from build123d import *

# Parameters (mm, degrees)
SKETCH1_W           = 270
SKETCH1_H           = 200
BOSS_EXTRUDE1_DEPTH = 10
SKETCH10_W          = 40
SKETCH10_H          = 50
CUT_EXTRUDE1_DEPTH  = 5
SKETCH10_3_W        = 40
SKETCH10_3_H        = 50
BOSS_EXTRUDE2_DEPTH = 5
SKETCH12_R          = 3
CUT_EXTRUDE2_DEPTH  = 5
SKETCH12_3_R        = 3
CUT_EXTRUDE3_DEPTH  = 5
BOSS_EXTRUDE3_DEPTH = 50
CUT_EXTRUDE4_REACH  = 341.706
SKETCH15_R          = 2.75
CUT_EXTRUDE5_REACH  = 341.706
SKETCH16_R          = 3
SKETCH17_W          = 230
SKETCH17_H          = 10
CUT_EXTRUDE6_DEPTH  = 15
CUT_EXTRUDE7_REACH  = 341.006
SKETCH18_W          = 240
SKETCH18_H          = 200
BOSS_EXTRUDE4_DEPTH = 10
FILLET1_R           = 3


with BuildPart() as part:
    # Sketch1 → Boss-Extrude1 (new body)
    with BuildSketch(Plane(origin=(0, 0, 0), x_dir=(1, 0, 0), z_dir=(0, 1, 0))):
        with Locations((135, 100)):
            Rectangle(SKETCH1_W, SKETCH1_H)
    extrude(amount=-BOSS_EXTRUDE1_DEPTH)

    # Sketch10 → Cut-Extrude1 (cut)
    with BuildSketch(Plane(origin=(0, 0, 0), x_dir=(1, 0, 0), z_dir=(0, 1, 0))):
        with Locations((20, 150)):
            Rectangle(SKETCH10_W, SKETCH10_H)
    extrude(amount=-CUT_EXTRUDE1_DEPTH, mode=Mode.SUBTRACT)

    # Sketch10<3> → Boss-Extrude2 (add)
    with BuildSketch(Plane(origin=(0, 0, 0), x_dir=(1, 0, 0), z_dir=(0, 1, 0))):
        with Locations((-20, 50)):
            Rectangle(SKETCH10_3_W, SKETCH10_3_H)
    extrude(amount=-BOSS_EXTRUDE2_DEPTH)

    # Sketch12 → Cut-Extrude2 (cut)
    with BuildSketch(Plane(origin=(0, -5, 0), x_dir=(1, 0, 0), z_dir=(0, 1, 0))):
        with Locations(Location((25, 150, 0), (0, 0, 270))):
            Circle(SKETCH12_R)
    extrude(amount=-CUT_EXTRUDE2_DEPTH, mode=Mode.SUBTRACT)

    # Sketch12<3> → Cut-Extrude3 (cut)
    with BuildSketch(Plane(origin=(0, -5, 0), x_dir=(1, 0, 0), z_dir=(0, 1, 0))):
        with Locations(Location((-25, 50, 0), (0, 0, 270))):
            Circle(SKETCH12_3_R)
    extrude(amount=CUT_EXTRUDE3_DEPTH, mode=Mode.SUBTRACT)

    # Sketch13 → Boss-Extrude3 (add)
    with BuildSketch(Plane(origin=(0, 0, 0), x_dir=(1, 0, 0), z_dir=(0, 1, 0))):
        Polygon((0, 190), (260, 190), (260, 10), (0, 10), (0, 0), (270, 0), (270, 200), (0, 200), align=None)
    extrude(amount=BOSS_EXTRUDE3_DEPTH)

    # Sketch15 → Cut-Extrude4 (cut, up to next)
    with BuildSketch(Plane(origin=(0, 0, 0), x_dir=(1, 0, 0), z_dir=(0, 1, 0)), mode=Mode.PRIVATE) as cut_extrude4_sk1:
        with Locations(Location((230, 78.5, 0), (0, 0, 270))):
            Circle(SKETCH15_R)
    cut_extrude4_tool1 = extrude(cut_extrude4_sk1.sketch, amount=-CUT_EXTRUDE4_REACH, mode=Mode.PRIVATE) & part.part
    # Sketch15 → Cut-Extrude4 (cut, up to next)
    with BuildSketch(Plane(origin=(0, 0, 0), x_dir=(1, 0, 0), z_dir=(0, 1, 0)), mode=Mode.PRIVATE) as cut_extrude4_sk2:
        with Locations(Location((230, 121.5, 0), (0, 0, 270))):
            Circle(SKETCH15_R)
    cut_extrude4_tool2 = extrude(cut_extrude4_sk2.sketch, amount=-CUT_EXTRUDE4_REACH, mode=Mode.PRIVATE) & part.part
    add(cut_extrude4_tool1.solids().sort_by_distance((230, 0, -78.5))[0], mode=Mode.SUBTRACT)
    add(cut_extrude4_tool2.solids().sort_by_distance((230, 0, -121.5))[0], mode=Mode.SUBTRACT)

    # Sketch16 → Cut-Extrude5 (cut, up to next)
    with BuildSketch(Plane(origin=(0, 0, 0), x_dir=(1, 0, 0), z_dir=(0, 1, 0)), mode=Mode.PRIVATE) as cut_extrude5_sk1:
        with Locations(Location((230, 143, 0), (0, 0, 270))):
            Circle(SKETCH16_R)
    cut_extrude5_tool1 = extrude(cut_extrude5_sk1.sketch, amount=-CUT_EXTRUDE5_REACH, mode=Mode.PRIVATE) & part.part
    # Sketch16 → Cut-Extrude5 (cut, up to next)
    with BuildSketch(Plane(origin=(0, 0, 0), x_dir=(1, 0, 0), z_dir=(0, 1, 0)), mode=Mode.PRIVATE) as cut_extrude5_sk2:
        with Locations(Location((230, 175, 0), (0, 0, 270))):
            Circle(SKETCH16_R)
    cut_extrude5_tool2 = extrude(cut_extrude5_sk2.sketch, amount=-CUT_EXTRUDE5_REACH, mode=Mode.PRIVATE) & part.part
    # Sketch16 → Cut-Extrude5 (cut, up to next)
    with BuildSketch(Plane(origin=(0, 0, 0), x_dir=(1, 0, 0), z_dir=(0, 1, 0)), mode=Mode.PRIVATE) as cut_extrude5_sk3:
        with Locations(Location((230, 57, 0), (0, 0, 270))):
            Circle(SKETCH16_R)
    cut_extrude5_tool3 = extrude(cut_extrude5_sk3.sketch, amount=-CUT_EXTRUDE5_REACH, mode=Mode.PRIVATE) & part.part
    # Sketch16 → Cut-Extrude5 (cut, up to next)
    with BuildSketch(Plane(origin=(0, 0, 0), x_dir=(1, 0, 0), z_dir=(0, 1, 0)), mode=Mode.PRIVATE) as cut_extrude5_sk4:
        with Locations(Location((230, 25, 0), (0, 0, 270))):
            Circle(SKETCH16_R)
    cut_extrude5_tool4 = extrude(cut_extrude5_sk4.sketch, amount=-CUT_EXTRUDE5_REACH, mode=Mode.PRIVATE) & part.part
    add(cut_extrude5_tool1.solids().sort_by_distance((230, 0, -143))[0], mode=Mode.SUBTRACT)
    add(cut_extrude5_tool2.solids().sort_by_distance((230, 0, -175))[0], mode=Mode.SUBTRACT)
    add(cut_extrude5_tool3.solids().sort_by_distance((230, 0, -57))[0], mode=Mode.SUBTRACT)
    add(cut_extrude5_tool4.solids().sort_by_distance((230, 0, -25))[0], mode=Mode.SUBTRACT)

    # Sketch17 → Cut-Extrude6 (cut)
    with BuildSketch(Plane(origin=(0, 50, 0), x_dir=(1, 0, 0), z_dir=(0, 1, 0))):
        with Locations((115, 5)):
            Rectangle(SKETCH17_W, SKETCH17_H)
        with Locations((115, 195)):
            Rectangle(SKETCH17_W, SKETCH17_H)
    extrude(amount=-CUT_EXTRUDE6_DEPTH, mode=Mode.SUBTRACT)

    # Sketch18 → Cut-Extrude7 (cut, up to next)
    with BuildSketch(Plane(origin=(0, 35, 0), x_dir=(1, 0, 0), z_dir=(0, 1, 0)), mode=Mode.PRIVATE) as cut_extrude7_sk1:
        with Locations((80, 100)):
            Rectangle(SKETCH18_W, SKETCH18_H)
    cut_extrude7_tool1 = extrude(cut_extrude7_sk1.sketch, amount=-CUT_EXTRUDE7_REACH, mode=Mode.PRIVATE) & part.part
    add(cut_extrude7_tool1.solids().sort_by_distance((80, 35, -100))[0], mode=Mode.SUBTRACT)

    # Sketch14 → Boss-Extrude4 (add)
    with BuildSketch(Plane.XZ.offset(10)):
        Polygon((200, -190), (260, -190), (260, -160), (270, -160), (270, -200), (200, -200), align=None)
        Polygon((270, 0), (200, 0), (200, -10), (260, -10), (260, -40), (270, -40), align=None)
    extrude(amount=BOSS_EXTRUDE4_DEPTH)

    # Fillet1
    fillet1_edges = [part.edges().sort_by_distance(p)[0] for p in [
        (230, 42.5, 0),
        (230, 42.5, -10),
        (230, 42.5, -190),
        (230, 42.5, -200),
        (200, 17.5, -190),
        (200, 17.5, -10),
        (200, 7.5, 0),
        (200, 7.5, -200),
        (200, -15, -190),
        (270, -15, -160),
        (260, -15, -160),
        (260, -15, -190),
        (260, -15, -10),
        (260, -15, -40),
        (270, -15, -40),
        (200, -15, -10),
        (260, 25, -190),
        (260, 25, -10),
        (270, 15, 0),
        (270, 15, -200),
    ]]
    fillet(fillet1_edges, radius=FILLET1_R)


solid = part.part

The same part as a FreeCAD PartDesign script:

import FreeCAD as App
import Part
import Sketcher

V = App.Vector


def edges_at(feature, points):
    """Names of the edges that pass closest to the given points."""
    edges = feature.Shape.Edges
    near = lambda p: min(range(len(edges)), key=lambda i: edges[i].distToShape(Part.Vertex(*p))[0])
    return sorted({f"Edge{near(p) + 1}" for p in points})

doc = App.newDocument("Part")
body = doc.addObject("PartDesign::Body", "Body")

sketch1 = doc.addObject("Sketcher::SketchObject", "Sketch")
body.addObject(sketch1)
sketch1.AttachmentSupport = (doc.XZ_Plane, [""])
sketch1.MapMode = "FlatFace"
sketch1.addGeometry([
    Part.LineSegment(V(0, -200, 0), V(0, 0, 0)),
    Part.LineSegment(V(0, 0, 0), V(270, 0, 0)),
    Part.LineSegment(V(270, 0, 0), V(270, -200, 0)),
    Part.LineSegment(V(270, -200, 0), V(0, -200, 0)),
], False)
sketch1.addConstraint([
    Sketcher.Constraint("Coincident", 0, 2, 1, 1),
    Sketcher.Constraint("Coincident", 1, 2, 2, 1),
    Sketcher.Constraint("Coincident", 2, 2, 3, 1),
    Sketcher.Constraint("Coincident", 3, 2, 0, 1),
    Sketcher.Constraint("Vertical", 0),
    Sketcher.Constraint("Horizontal", 1),
    Sketcher.Constraint("Vertical", 2),
    Sketcher.Constraint("Horizontal", 3),
    Sketcher.Constraint("Coincident", 0, 2, -1, 1),
    Sketcher.Constraint("DistanceX", 1, 1, 1, 2, 270.0),
    Sketcher.Constraint("DistanceY", 0, 1, 0, 2, 200.0),
])
pad1 = doc.addObject("PartDesign::Pad", "Pad")
body.addObject(pad1)
pad1.Profile = sketch1
pad1.Length = 10

sketch2 = doc.addObject("Sketcher::SketchObject", "Sketch001")
body.addObject(sketch2)
sketch2.AttachmentSupport = (doc.XZ_Plane, [""])
sketch2.MapMode = "FlatFace"
sketch2.addGeometry([
    Part.LineSegment(V(0, -175, 0), V(0, -125, 0)),
    Part.LineSegment(V(0, -125, 0), V(40, -125, 0)),
    Part.LineSegment(V(40, -125, 0), V(40, -175, 0)),
    Part.LineSegment(V(40, -175, 0), V(0, -175, 0)),
], False)
sketch2.addConstraint([
    Sketcher.Constraint("Coincident", 0, 2, 1, 1),
    Sketcher.Constraint("Coincident", 1, 2, 2, 1),
    Sketcher.Constraint("Coincident", 2, 2, 3, 1),
    Sketcher.Constraint("Coincident", 3, 2, 0, 1),
    Sketcher.Constraint("Vertical", 0),
    Sketcher.Constraint("Horizontal", 1),
    Sketcher.Constraint("Vertical", 2),
    Sketcher.Constraint("Horizontal", 3),
    Sketcher.Constraint("PointOnObject", 0, 2, -2),
    Sketcher.Constraint("DistanceX", 1, 1, 1, 2, 40.0),
    Sketcher.Constraint("DistanceY", 0, 1, 0, 2, 50.0),
    Sketcher.Constraint("DistanceY", 0, 2, -1, 1, 125.0),
])
pocket1 = doc.addObject("PartDesign::Pocket", "Pocket")
body.addObject(pocket1)
pocket1.Profile = sketch2
pocket1.Length = 5
pocket1.Reversed = True

sketch3 = doc.addObject("Sketcher::SketchObject", "Sketch002")
body.addObject(sketch3)
sketch3.AttachmentSupport = (doc.XZ_Plane, [""])
sketch3.MapMode = "FlatFace"
sketch3.addGeometry([
    Part.LineSegment(V(-40, -75, 0), V(-40, -25, 0)),
    Part.LineSegment(V(-40, -25, 0), V(0, -25, 0)),
    Part.LineSegment(V(0, -25, 0), V(0, -75, 0)),
    Part.LineSegment(V(0, -75, 0), V(-40, -75, 0)),
], False)
sketch3.addConstraint([
    Sketcher.Constraint("Coincident", 0, 2, 1, 1),
    Sketcher.Constraint("Coincident", 1, 2, 2, 1),
    Sketcher.Constraint("Coincident", 2, 2, 3, 1),
    Sketcher.Constraint("Coincident", 3, 2, 0, 1),
    Sketcher.Constraint("Vertical", 0),
    Sketcher.Constraint("Horizontal", 1),
    Sketcher.Constraint("Vertical", 2),
    Sketcher.Constraint("Horizontal", 3),
    Sketcher.Constraint("PointOnObject", 1, 2, -2),
    Sketcher.Constraint("DistanceX", 1, 1, 1, 2, 40.0),
    Sketcher.Constraint("DistanceY", 0, 1, 0, 2, 50.0),
    Sketcher.Constraint("DistanceY", 0, 2, -1, 1, 25.0),
])
pad2 = doc.addObject("PartDesign::Pad", "Pad001")
body.addObject(pad2)
pad2.Profile = sketch3
pad2.Length = 5

sketch4 = doc.addObject("Sketcher::SketchObject", "Sketch003")
body.addObject(sketch4)
sketch4.AttachmentSupport = (doc.XZ_Plane, [""])
sketch4.MapMode = "FlatFace"
sketch4.AttachmentOffset = App.Placement(V(0, 0, 5), App.Rotation())
sketch4.addGeometry(Part.Circle(V(25, -150, 0), V(0, 0, 1), 3), False)
sketch4.addConstraint([
    Sketcher.Constraint("Diameter", 0, 6.0),
    Sketcher.Constraint("DistanceX", -1, 1, 0, 3, 25.0),
    Sketcher.Constraint("DistanceY", 0, 3, -1, 1, 150.0),
])
pocket2 = doc.addObject("PartDesign::Pocket", "Pocket001")
body.addObject(pocket2)
pocket2.Profile = sketch4
pocket2.Length = 5
pocket2.Reversed = True

sketch5 = doc.addObject("Sketcher::SketchObject", "Sketch004")
body.addObject(sketch5)
sketch5.AttachmentSupport = (doc.XZ_Plane, [""])
sketch5.MapMode = "FlatFace"
sketch5.AttachmentOffset = App.Placement(V(0, 0, 5), App.Rotation())
sketch5.addGeometry(Part.Circle(V(-25, -50, 0), V(0, 0, 1), 3), False)
sketch5.addConstraint([
    Sketcher.Constraint("Diameter", 0, 6.0),
    Sketcher.Constraint("DistanceX", 0, 3, -1, 1, 25.0),
    Sketcher.Constraint("DistanceY", 0, 3, -1, 1, 50.0),
])
pocket3 = doc.addObject("PartDesign::Pocket", "Pocket002")
body.addObject(pocket3)
pocket3.Profile = sketch5
pocket3.Length = 5

sketch6 = doc.addObject("Sketcher::SketchObject", "Sketch005")
body.addObject(sketch6)
sketch6.AttachmentSupport = (doc.XZ_Plane, [""])
sketch6.MapMode = "FlatFace"
sketch6.addGeometry([
    Part.LineSegment(V(0, -190, 0), V(260, -190, 0)),
    Part.LineSegment(V(260, -190, 0), V(260, -10, 0)),
    Part.LineSegment(V(260, -10, 0), V(0, -10, 0)),
    Part.LineSegment(V(0, -10, 0), V(0, 0, 0)),
    Part.LineSegment(V(0, 0, 0), V(270, 0, 0)),
    Part.LineSegment(V(270, 0, 0), V(270, -200, 0)),
    Part.LineSegment(V(270, -200, 0), V(0, -200, 0)),
    Part.LineSegment(V(0, -200, 0), V(0, -190, 0)),
], False)
sketch6.addConstraint([
    Sketcher.Constraint("Coincident", 0, 2, 1, 1),
    Sketcher.Constraint("Coincident", 1, 2, 2, 1),
    Sketcher.Constraint("Coincident", 2, 2, 3, 1),
    Sketcher.Constraint("Coincident", 3, 2, 4, 1),
    Sketcher.Constraint("Coincident", 4, 2, 5, 1),
    Sketcher.Constraint("Coincident", 5, 2, 6, 1),
    Sketcher.Constraint("Coincident", 6, 2, 7, 1),
    Sketcher.Constraint("Coincident", 7, 2, 0, 1),
    Sketcher.Constraint("Horizontal", 0),
    Sketcher.Constraint("Vertical", 1),
    Sketcher.Constraint("Horizontal", 2),
    Sketcher.Constraint("Vertical", 3),
    Sketcher.Constraint("Horizontal", 4),
    Sketcher.Constraint("Vertical", 5),
    Sketcher.Constraint("Horizontal", 6),
    Sketcher.Constraint("Vertical", 7),
    Sketcher.Constraint("Coincident", 3, 2, -1, 1),
    Sketcher.Constraint("PointOnObject", 6, 2, -2),
    Sketcher.Constraint("Equal", 3, 7),
    Sketcher.Constraint("DistanceX", 0, 1, 0, 2, 260.0),
    Sketcher.Constraint("DistanceX", 4, 1, 4, 2, 270.0),
    Sketcher.Constraint("DistanceY", 1, 1, 1, 2, 180.0),
    Sketcher.Constraint("DistanceY", 3, 1, 3, 2, 10.0),
])
pad3 = doc.addObject("PartDesign::Pad", "Pad002")
body.addObject(pad3)
pad3.Profile = sketch6
pad3.Length = 50
pad3.Reversed = True

sketch7 = doc.addObject("Sketcher::SketchObject", "Sketch006")
body.addObject(sketch7)
sketch7.AttachmentSupport = (doc.XZ_Plane, [""])
sketch7.MapMode = "FlatFace"
sketch7.addGeometry(Part.Circle(V(230, -78.5, 0), V(0, 0, 1), 2.75), False)
sketch7.addConstraint([
    Sketcher.Constraint("Diameter", 0, 5.5),
    Sketcher.Constraint("DistanceX", -1, 1, 0, 3, 230.0),
    Sketcher.Constraint("DistanceY", 0, 3, -1, 1, 78.5),
])
pocket4 = doc.addObject("PartDesign::Pocket", "Pocket003")
body.addObject(pocket4)
pocket4.Profile = sketch7
pocket4.Type = "UpToFirst"
pocket4.Reversed = True

sketch8 = doc.addObject("Sketcher::SketchObject", "Sketch007")
body.addObject(sketch8)
sketch8.AttachmentSupport = (doc.XZ_Plane, [""])
sketch8.MapMode = "FlatFace"
sketch8.addGeometry(Part.Circle(V(230, -121.5, 0), V(0, 0, 1), 2.75), False)
sketch8.addConstraint([
    Sketcher.Constraint("Diameter", 0, 5.5),
    Sketcher.Constraint("DistanceX", -1, 1, 0, 3, 230.0),
    Sketcher.Constraint("DistanceY", 0, 3, -1, 1, 121.5),
])
pocket5 = doc.addObject("PartDesign::Pocket", "Pocket004")
body.addObject(pocket5)
pocket5.Profile = sketch8
pocket5.Type = "UpToFirst"
pocket5.Reversed = True

sketch9 = doc.addObject("Sketcher::SketchObject", "Sketch008")
body.addObject(sketch9)
sketch9.AttachmentSupport = (doc.XZ_Plane, [""])
sketch9.MapMode = "FlatFace"
sketch9.addGeometry(Part.Circle(V(230, -143, 0), V(0, 0, 1), 3), False)
sketch9.addConstraint([
    Sketcher.Constraint("Diameter", 0, 6.0),
    Sketcher.Constraint("DistanceX", -1, 1, 0, 3, 230.0),
    Sketcher.Constraint("DistanceY", 0, 3, -1, 1, 143.0),
])
pocket6 = doc.addObject("PartDesign::Pocket", "Pocket005")
body.addObject(pocket6)
pocket6.Profile = sketch9
pocket6.Type = "UpToFirst"
pocket6.Reversed = True

sketch10 = doc.addObject("Sketcher::SketchObject", "Sketch009")
body.addObject(sketch10)
sketch10.AttachmentSupport = (doc.XZ_Plane, [""])
sketch10.MapMode = "FlatFace"
sketch10.addGeometry(Part.Circle(V(230, -175, 0), V(0, 0, 1), 3), False)
sketch10.addConstraint([
    Sketcher.Constraint("Diameter", 0, 6.0),
    Sketcher.Constraint("DistanceX", -1, 1, 0, 3, 230.0),
    Sketcher.Constraint("DistanceY", 0, 3, -1, 1, 175.0),
])
pocket7 = doc.addObject("PartDesign::Pocket", "Pocket006")
body.addObject(pocket7)
pocket7.Profile = sketch10
pocket7.Type = "UpToFirst"
pocket7.Reversed = True

sketch11 = doc.addObject("Sketcher::SketchObject", "Sketch010")
body.addObject(sketch11)
sketch11.AttachmentSupport = (doc.XZ_Plane, [""])
sketch11.MapMode = "FlatFace"
sketch11.addGeometry(Part.Circle(V(230, -57, 0), V(0, 0, 1), 3), False)
sketch11.addConstraint([
    Sketcher.Constraint("Diameter", 0, 6.0),
    Sketcher.Constraint("DistanceX", -1, 1, 0, 3, 230.0),
    Sketcher.Constraint("DistanceY", 0, 3, -1, 1, 57.0),
])
pocket8 = doc.addObject("PartDesign::Pocket", "Pocket007")
body.addObject(pocket8)
pocket8.Profile = sketch11
pocket8.Type = "UpToFirst"
pocket8.Reversed = True

sketch12 = doc.addObject("Sketcher::SketchObject", "Sketch011")
body.addObject(sketch12)
sketch12.AttachmentSupport = (doc.XZ_Plane, [""])
sketch12.MapMode = "FlatFace"
sketch12.addGeometry(Part.Circle(V(230, -25, 0), V(0, 0, 1), 3), False)
sketch12.addConstraint([
    Sketcher.Constraint("Diameter", 0, 6.0),
    Sketcher.Constraint("DistanceX", -1, 1, 0, 3, 230.0),
    Sketcher.Constraint("DistanceY", 0, 3, -1, 1, 25.0),
])
pocket9 = doc.addObject("PartDesign::Pocket", "Pocket008")
body.addObject(pocket9)
pocket9.Profile = sketch12
pocket9.Type = "UpToFirst"
pocket9.Reversed = True

sketch13 = doc.addObject("Sketcher::SketchObject", "Sketch012")
body.addObject(sketch13)
sketch13.AttachmentSupport = (doc.XZ_Plane, [""])
sketch13.MapMode = "FlatFace"
sketch13.AttachmentOffset = App.Placement(V(0, 0, -50), App.Rotation())
sketch13.addGeometry([
    Part.LineSegment(V(0, -10, 0), V(0, 0, 0)),
    Part.LineSegment(V(0, 0, 0), V(230, 0, 0)),
    Part.LineSegment(V(230, 0, 0), V(230, -10, 0)),
    Part.LineSegment(V(230, -10, 0), V(0, -10, 0)),
    Part.LineSegment(V(0, -200, 0), V(0, -190, 0)),
    Part.LineSegment(V(0, -190, 0), V(230, -190, 0)),
    Part.LineSegment(V(230, -190, 0), V(230, -200, 0)),
    Part.LineSegment(V(230, -200, 0), V(0, -200, 0)),
], False)
sketch13.addConstraint([
    Sketcher.Constraint("Coincident", 0, 2, 1, 1),
    Sketcher.Constraint("Coincident", 1, 2, 2, 1),
    Sketcher.Constraint("Coincident", 2, 2, 3, 1),
    Sketcher.Constraint("Coincident", 3, 2, 0, 1),
    Sketcher.Constraint("Coincident", 4, 2, 5, 1),
    Sketcher.Constraint("Coincident", 5, 2, 6, 1),
    Sketcher.Constraint("Coincident", 6, 2, 7, 1),
    Sketcher.Constraint("Coincident", 7, 2, 4, 1),
    Sketcher.Constraint("Vertical", 0),
    Sketcher.Constraint("Horizontal", 1),
    Sketcher.Constraint("Vertical", 2),
    Sketcher.Constraint("Horizontal", 3),
    Sketcher.Constraint("Vertical", 4),
    Sketcher.Constraint("Horizontal", 5),
    Sketcher.Constraint("Vertical", 6),
    Sketcher.Constraint("Horizontal", 7),
    Sketcher.Constraint("Coincident", 0, 2, -1, 1),
    Sketcher.Constraint("PointOnObject", 4, 2, -2),
    Sketcher.Constraint("Vertical", 2, 2, 5, 2),
    Sketcher.Constraint("Equal", 2, 4),
    Sketcher.Constraint("DistanceX", 1, 1, 1, 2, 230.0),
    Sketcher.Constraint("DistanceY", 0, 1, 0, 2, 10.0),
    Sketcher.Constraint("DistanceY", 4, 2, -1, 1, 190.0),
])
pocket10 = doc.addObject("PartDesign::Pocket", "Pocket009")
body.addObject(pocket10)
pocket10.Profile = sketch13
pocket10.Length = 15
pocket10.Reversed = True

sketch14 = doc.addObject("Sketcher::SketchObject", "Sketch013")
body.addObject(sketch14)
sketch14.AttachmentSupport = (doc.XZ_Plane, [""])
sketch14.MapMode = "FlatFace"
sketch14.AttachmentOffset = App.Placement(V(0, 0, -35), App.Rotation())
sketch14.addGeometry([
    Part.LineSegment(V(-40, -200, 0), V(-40, 0, 0)),
    Part.LineSegment(V(-40, 0, 0), V(200, 0, 0)),
    Part.LineSegment(V(200, 0, 0), V(200, -200, 0)),
    Part.LineSegment(V(200, -200, 0), V(-40, -200, 0)),
], False)
sketch14.addConstraint([
    Sketcher.Constraint("Coincident", 0, 2, 1, 1),
    Sketcher.Constraint("Coincident", 1, 2, 2, 1),
    Sketcher.Constraint("Coincident", 2, 2, 3, 1),
    Sketcher.Constraint("Coincident", 3, 2, 0, 1),
    Sketcher.Constraint("Vertical", 0),
    Sketcher.Constraint("Horizontal", 1),
    Sketcher.Constraint("Vertical", 2),
    Sketcher.Constraint("Horizontal", 3),
    Sketcher.Constraint("PointOnObject", 0, 2, -1),
    Sketcher.Constraint("DistanceX", 1, 1, 1, 2, 240.0),
    Sketcher.Constraint("DistanceY", 0, 1, 0, 2, 200.0),
    Sketcher.Constraint("DistanceX", 0, 2, -1, 1, 40.0),
])
pocket11 = doc.addObject("PartDesign::Pocket", "Pocket010")
body.addObject(pocket11)
pocket11.Profile = sketch14
pocket11.Length = 45
pocket11.Reversed = True

sketch15 = doc.addObject("Sketcher::SketchObject", "Sketch014")
body.addObject(sketch15)
sketch15.AttachmentSupport = (doc.XZ_Plane, [""])
sketch15.MapMode = "FlatFace"
sketch15.AttachmentOffset = App.Placement(V(0, 0, 10), App.Rotation())
sketch15.addGeometry([
    Part.LineSegment(V(260, -190, 0), V(200, -190, 0)),
    Part.LineSegment(V(200, -190, 0), V(200, -200, 0)),
    Part.LineSegment(V(200, -200, 0), V(270, -200, 0)),
    Part.LineSegment(V(270, -200, 0), V(270, -160, 0)),
    Part.LineSegment(V(270, -160, 0), V(260, -160, 0)),
    Part.LineSegment(V(260, -160, 0), V(260, -190, 0)),
    Part.LineSegment(V(270, 0, 0), V(200, 0, 0)),
    Part.LineSegment(V(200, 0, 0), V(200, -10, 0)),
    Part.LineSegment(V(200, -10, 0), V(260, -10, 0)),
    Part.LineSegment(V(260, -10, 0), V(260, -40, 0)),
    Part.LineSegment(V(260, -40, 0), V(270, -40, 0)),
    Part.LineSegment(V(270, -40, 0), V(270, 0, 0)),
], False)
sketch15.addConstraint([
    Sketcher.Constraint("Coincident", 0, 2, 1, 1),
    Sketcher.Constraint("Coincident", 1, 2, 2, 1),
    Sketcher.Constraint("Coincident", 2, 2, 3, 1),
    Sketcher.Constraint("Coincident", 3, 2, 4, 1),
    Sketcher.Constraint("Coincident", 4, 2, 5, 1),
    Sketcher.Constraint("Coincident", 5, 2, 0, 1),
    Sketcher.Constraint("Coincident", 6, 2, 7, 1),
    Sketcher.Constraint("Coincident", 7, 2, 8, 1),
    Sketcher.Constraint("Coincident", 8, 2, 9, 1),
    Sketcher.Constraint("Coincident", 9, 2, 10, 1),
    Sketcher.Constraint("Coincident", 10, 2, 11, 1),
    Sketcher.Constraint("Coincident", 11, 2, 6, 1),
    Sketcher.Constraint("Horizontal", 0),
    Sketcher.Constraint("Vertical", 1),
    Sketcher.Constraint("Horizontal", 2),
    Sketcher.Constraint("Vertical", 3),
    Sketcher.Constraint("Horizontal", 4),
    Sketcher.Constraint("Vertical", 5),
    Sketcher.Constraint("Horizontal", 6),
    Sketcher.Constraint("Vertical", 7),
    Sketcher.Constraint("Horizontal", 8),
    Sketcher.Constraint("Vertical", 9),
    Sketcher.Constraint("Horizontal", 10),
    Sketcher.Constraint("Vertical", 11),
    Sketcher.Constraint("PointOnObject", 6, 2, -1),
    Sketcher.Constraint("Vertical", 1, 2, 6, 2),
    Sketcher.Constraint("Vertical", 5, 2, 8, 2),
    Sketcher.Constraint("Vertical", 3, 2, 10, 2),
    Sketcher.Constraint("Equal", 10, 1),
    Sketcher.Constraint("Equal", 1, 7),
    Sketcher.Constraint("Equal", 5, 9),
    Sketcher.Constraint("DistanceX", 0, 2, 0, 1, 60.0),
    Sketcher.Constraint("DistanceX", 2, 1, 2, 2, 70.0),
    Sketcher.Constraint("DistanceY", 3, 1, 3, 2, 40.0),
    Sketcher.Constraint("DistanceX", -1, 1, 0, 2, 200.0),
    Sketcher.Constraint("DistanceY", 0, 2, -1, 1, 190.0),
])
pad4 = doc.addObject("PartDesign::Pad", "Pad003")
body.addObject(pad4)
pad4.Profile = sketch15
pad4.Length = 10
doc.recompute()

fillet = doc.addObject("PartDesign::Fillet", "Fillet")
body.addObject(fillet)
fillet.Base = (pad4, edges_at(pad4, [
    (230, 42.5, 0),
    (230, 42.5, -10),
    (230, 42.5, -190),
    (230, 42.5, -200),
    (200, 17.5, -190),
    (200, 17.5, -10),
    (200, 7.5, 0),
    (200, 7.5, -200),
    (200, -15, -190),
    (270, -15, -160),
    (260, -15, -160),
    (260, -15, -190),
    (260, -15, -10),
    (260, -15, -40),
    (270, -15, -40),
    (200, -15, -10),
    (260, 25, -190),
    (260, 25, -10),
    (270, 15, 0),
    (270, 15, -200),
]))
fillet.Radius = 3

doc.recompute()
